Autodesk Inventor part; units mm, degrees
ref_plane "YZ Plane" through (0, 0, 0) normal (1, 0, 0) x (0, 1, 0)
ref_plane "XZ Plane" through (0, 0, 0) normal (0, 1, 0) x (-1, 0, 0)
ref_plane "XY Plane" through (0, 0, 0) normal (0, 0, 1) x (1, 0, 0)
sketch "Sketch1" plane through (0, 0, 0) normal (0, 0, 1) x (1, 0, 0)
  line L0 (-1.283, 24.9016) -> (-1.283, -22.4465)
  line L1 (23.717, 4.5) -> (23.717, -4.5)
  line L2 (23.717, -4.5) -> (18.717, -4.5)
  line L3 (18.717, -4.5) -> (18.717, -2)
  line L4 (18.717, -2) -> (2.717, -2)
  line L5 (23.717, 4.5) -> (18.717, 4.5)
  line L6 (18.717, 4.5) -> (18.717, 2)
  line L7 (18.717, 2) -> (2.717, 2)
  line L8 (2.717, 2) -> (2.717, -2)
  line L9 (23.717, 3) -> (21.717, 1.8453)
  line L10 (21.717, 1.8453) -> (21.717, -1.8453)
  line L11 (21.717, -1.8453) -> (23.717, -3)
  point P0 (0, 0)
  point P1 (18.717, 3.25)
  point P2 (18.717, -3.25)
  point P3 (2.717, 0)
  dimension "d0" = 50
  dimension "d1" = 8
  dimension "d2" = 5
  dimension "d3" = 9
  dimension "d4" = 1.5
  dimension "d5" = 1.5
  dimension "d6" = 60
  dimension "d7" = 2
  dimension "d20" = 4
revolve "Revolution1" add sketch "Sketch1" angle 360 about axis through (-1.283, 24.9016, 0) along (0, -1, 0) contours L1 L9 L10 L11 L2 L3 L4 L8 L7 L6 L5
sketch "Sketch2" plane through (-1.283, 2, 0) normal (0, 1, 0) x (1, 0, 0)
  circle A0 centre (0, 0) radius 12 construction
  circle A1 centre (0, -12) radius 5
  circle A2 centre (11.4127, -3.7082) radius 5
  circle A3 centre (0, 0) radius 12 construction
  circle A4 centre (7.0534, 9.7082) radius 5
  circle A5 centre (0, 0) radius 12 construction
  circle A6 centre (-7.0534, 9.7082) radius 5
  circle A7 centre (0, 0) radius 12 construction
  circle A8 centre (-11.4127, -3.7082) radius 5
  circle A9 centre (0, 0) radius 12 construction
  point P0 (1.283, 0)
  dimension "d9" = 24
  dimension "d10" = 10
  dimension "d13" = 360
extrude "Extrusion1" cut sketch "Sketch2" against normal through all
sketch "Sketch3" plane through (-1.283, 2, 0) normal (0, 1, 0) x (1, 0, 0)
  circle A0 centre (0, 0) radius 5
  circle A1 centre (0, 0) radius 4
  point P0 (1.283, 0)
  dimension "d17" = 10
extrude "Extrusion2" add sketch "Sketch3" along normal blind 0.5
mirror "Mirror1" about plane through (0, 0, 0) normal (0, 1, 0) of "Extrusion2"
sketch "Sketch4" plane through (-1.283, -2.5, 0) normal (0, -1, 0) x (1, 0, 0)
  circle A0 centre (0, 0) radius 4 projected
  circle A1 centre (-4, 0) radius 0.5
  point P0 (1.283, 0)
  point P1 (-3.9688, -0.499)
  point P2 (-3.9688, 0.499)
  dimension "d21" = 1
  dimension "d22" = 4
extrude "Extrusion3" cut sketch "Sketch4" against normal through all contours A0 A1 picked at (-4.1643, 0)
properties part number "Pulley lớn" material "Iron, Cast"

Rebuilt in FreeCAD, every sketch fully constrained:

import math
import FreeCAD as App
import Part
import Sketcher
Q = App.Units.Quantity

doc = App.newDocument("Part")
params = doc.addObject("Spreadsheet::Sheet", "Params")
for row, (alias, value) in enumerate([
    ("sketch1_width", "5 mm"),
    ("sketch1_height", "4 mm"),
    ("sketch1_height2", "9 mm"),
    ("sketch1_height3", "1.5 mm"),
    ("sketch1_width2", "16 mm"),
    ("revolution_angle", "360 deg"),
    ("sketch2_diameter", "10 mm"),
    ("sketch3_diameter", "10 mm"),
    ("sketch3_diameter2", "8 mm"),
    ("pad1_length", "0.5 mm"),
    ("sketch4_radius", "4 mm"),
    ("sketch4_radius2", "0.5 mm"),
], start=1):
    params.set(f"A{row}", alias)
    params.set(f"B{row}", "=" + value)
    params.setAlias(f"B{row}", alias)

body = doc.addObject("PartDesign::Body", "Body")

sketch1 = body.newObject("Sketcher::SketchObject", "Sketch")
sketch1.AttachmentSupport = (doc.getObject("XY_Plane"), [""])
sketch1.MapMode = "FlatFace"
sketch1.addGeometry([
    Part.LineSegment(App.Vector(23.7, 3, 0), App.Vector(23.7, 4.5, 0)),
    Part.LineSegment(App.Vector(23.7, 4.5, 0), App.Vector(18.7, 4.5, 0)),
    Part.LineSegment(App.Vector(18.7, 4.5, 0), App.Vector(18.7, 2, 0)),
    Part.LineSegment(App.Vector(18.7, 2, 0), App.Vector(2.7, 2, 0)),
    Part.LineSegment(App.Vector(2.7, 2, 0), App.Vector(2.7, -2, 0)),
    Part.LineSegment(App.Vector(2.7, -2, 0), App.Vector(18.7, -2, 0)),
    Part.LineSegment(App.Vector(18.7, -2, 0), App.Vector(18.7, -4.5, 0)),
    Part.LineSegment(App.Vector(18.7, -4.5, 0), App.Vector(23.7, -4.5, 0)),
    Part.LineSegment(App.Vector(23.7, -4.5, 0), App.Vector(23.7, -3, 0)),
    Part.LineSegment(App.Vector(23.7, -3, 0), App.Vector(21.7, -1.8, 0)),
    Part.LineSegment(App.Vector(21.7, -1.8, 0), App.Vector(21.7, 1.8, 0)),
    Part.LineSegment(App.Vector(21.7, 1.8, 0), App.Vector(23.7, 3, 0)),
], False)
sketch1.addGeometry(Part.LineSegment(App.Vector(-1.3, 4.5, 0), App.Vector(-1.3, -4.5, 0)), True)
sketch1.addConstraint([
    Sketcher.Constraint("Coincident", 0, 2, 1, 1),
    Sketcher.Constraint("Coincident", 1, 2, 2, 1),
    Sketcher.Constraint("Coincident", 2, 2, 3, 1),
    Sketcher.Constraint("Coincident", 3, 2, 4, 1),
    Sketcher.Constraint("Coincident", 4, 2, 5, 1),
    Sketcher.Constraint("Coincident", 5, 2, 6, 1),
    Sketcher.Constraint("Coincident", 6, 2, 7, 1),
    Sketcher.Constraint("Coincident", 7, 2, 8, 1),
    Sketcher.Constraint("Coincident", 8, 2, 9, 1),
    Sketcher.Constraint("Coincident", 9, 2, 10, 1),
    Sketcher.Constraint("Coincident", 10, 2, 11, 1),
    Sketcher.Constraint("Coincident", 11, 2, 0, 1),
    Sketcher.Constraint("Vertical", 0),
    Sketcher.Constraint("Horizontal", 1),
    Sketcher.Constraint("Vertical", 2),
    Sketcher.Constraint("Horizontal", 3),
    Sketcher.Constraint("Vertical", 4),
    Sketcher.Constraint("Horizontal", 5),
    Sketcher.Constraint("Vertical", 6),
    Sketcher.Constraint("Horizontal", 7),
    Sketcher.Constraint("Vertical", 8),
    Sketcher.Constraint("Vertical", 10),
    Sketcher.Constraint("Vertical", 12),
    Sketcher.Constraint("Symmetric", 2, 2, 5, 2, -1),
    Sketcher.Constraint("Symmetric", 0, 2, 7, 2, -1),
    Sketcher.Constraint("Horizontal", 1, 2, 12, 1),
    Sketcher.Constraint("Horizontal", 7, 2, 12, 2),
    Sketcher.Constraint("Equal", 0, 8),
    Sketcher.Constraint("Equal", 9, 11),
    Sketcher.Constraint("DistanceX", 1, 2, 1, 1, Q("5 mm")),
    Sketcher.Constraint("DistanceY", 4, 2, 4, 1, Q("4 mm")),
    Sketcher.Constraint("DistanceY", 12, 2, 12, 1, Q("9 mm")),
    Sketcher.Constraint("DistanceY", 0, 1, 0, 2, Q("1.5 mm")),
    Sketcher.Constraint("DistanceX", 9, 2, 8, 2, Q("2 mm")),
    Sketcher.Constraint("DistanceX", 12, 1, 3, 2, Q("4 mm")),
    Sketcher.Constraint("DistanceX", 3, 2, 3, 1, Q("16 mm")),
    Sketcher.Constraint("Angle", 9, Q("150 deg")),
    Sketcher.Constraint("DistanceX", -1, 1, 0, 2, Q("23.717 mm")),
])
sketch1.setExpression("Constraints[29]", "Params.sketch1_width")
sketch1.setExpression("Constraints[30]", "Params.sketch1_height")
sketch1.setExpression("Constraints[31]", "Params.sketch1_height2")
sketch1.setExpression("Constraints[32]", "Params.sketch1_height3")
sketch1.setExpression("Constraints[35]", "Params.sketch1_width2")
revolution = body.newObject("PartDesign::Revolution", "Revolution")
revolution.Profile = sketch1
revolution.ReferenceAxis = (sketch1, ["Axis0"])
revolution.setExpression("Angle", "Params.revolution_angle")

sketch2 = body.newObject("Sketcher::SketchObject", "Sketch001")
sketch2.AttachmentSupport = (doc.getObject("XZ_Plane"), [""])
sketch2.MapMode = "FlatFace"
sketch2.AttachmentOffset = App.Placement(App.Vector(0, 0, -2), App.Rotation())
sketch2.addGeometry([
    Part.Circle(App.Vector(-1, 12, 0), App.Vector(0, 0, 1), 5),
    Part.Circle(App.Vector(10, 4, 0), App.Vector(0, 0, 1), 5),
    Part.Circle(App.Vector(6, -10, 0), App.Vector(0, 0, 1), 5),
    Part.Circle(App.Vector(-8, -10, 0), App.Vector(0, 0, 1), 5),
    Part.Circle(App.Vector(-13, 4, 0), App.Vector(0, 0, 1), 5),
], False)
sketch2.addConstraint([
    Sketcher.Constraint("Equal", 0, 1),
    Sketcher.Constraint("Equal", 1, 2),
    Sketcher.Constraint("Equal", 2, 3),
    Sketcher.Constraint("Equal", 3, 4),
    Sketcher.Constraint("Horizontal", 2, 3, 3, 3),
    Sketcher.Constraint("Horizontal", 1, 3, 4, 3),
    Sketcher.Constraint("Diameter", 0, Q("10 mm")),
    Sketcher.Constraint("DistanceY", -1, 1, 0, 3, Q("12 mm")),
    Sketcher.Constraint("DistanceX", 0, 3, -1, 1, Q("1.283 mm")),
    Sketcher.Constraint("DistanceX", 3, 3, 1, 3, Q("18.466 mm")),
    Sketcher.Constraint("DistanceX", 4, 3, 2, 3, Q("18.466 mm")),
    Sketcher.Constraint("DistanceX", -1, 1, 1, 3, Q("10.1297 mm")),
    Sketcher.Constraint("DistanceY", -1, 1, 1, 3, Q("3.7082 mm")),
    Sketcher.Constraint("DistanceX", -1, 1, 2, 3, Q("5.7704 mm")),
    Sketcher.Constraint("DistanceY", 2, 3, -1, 1, Q("9.7082 mm")),
])
sketch2.setExpression("Constraints[6]", "Params.sketch2_diameter")
pocket1 = body.newObject("PartDesign::Pocket", "Pocket")
pocket1.Profile = sketch2
pocket1.Type = "ThroughAll"
pocket1.Reversed = True

sketch3 = body.newObject("Sketcher::SketchObject", "Sketch002")
sketch3.AttachmentSupport = (doc.getObject("XZ_Plane"), [""])
sketch3.MapMode = "FlatFace"
sketch3.AttachmentOffset = App.Placement(App.Vector(0, 0, -2), App.Rotation())
sketch3.addGeometry([
    Part.Circle(App.Vector(-1.3, 0, 0), App.Vector(0, 0, 1), 5),
    Part.Circle(App.Vector(-1.3, 0, 0), App.Vector(0, 0, 1), 4),
], False)
sketch3.addConstraint([
    Sketcher.Constraint("Coincident", 1, 3, 0, 3),
    Sketcher.Constraint("PointOnObject", 0, 3, -1),
    Sketcher.Constraint("Diameter", 0, Q("10 mm")),
    Sketcher.Constraint("Diameter", 1, Q("8 mm")),
    Sketcher.Constraint("DistanceX", 0, 3, -1, 1, Q("1.283 mm")),
])
sketch3.setExpression("Constraints[2]", "Params.sketch3_diameter")
sketch3.setExpression("Constraints[3]", "Params.sketch3_diameter2")
pad1 = body.newObject("PartDesign::Pad", "Pad")
pad1.Profile = sketch3
pad1.setExpression("Length", "Params.pad1_length")
pad1.Reversed = True
doc.recompute()

mirrored = body.newObject("PartDesign::Mirrored", "Mirrored")
mirrored.Originals = [pad1]
mirrored.MirrorPlane = (doc.getObject("XZ_Plane"), [""])
body.Tip = mirrored

sketch4 = body.newObject("Sketcher::SketchObject", "Sketch003")
sketch4.AttachmentSupport = (doc.getObject("XZ_Plane"), [""])
sketch4.MapMode = "FlatFace"
sketch4.AttachmentOffset = App.Placement(App.Vector(0, 0, 2.5), App.Rotation())
sketch4.addGeometry([
    Part.ArcOfCircle(Part.Circle(App.Vector(-1.3, 0, 0), App.Vector(0, 0, 1), 4), math.radians(172.83), math.radians(187.17)),
    Part.ArcOfCircle(Part.Circle(App.Vector(-5.3, 0, 0), App.Vector(0, 0, 1), 0.5), math.radians(86), math.radians(274)),
], False)
sketch4.addConstraint([
    Sketcher.Constraint("Coincident", 0, 1, 1, 1),
    Sketcher.Constraint("Coincident", 1, 2, 0, 2),
    Sketcher.Constraint("Symmetric", 0, 1, 1, 2, -1),
    Sketcher.Constraint("Radius", 0, Q("4 mm")),
    Sketcher.Constraint("Radius", 1, Q("0.5 mm")),
    Sketcher.Constraint("DistanceX", 1, 3, 0, 3, Q("4 mm")),
    Sketcher.Constraint("DistanceX", 0, 3, -1, 1, Q("1.283 mm")),
])
sketch4.setExpression("Constraints[3]", "Params.sketch4_radius")
sketch4.setExpression("Constraints[4]", "Params.sketch4_radius2")
pocket2 = body.newObject("PartDesign::Pocket", "Pocket001")
pocket2.Profile = sketch4
pocket2.Type = "ThroughAll"

doc.recompute()
